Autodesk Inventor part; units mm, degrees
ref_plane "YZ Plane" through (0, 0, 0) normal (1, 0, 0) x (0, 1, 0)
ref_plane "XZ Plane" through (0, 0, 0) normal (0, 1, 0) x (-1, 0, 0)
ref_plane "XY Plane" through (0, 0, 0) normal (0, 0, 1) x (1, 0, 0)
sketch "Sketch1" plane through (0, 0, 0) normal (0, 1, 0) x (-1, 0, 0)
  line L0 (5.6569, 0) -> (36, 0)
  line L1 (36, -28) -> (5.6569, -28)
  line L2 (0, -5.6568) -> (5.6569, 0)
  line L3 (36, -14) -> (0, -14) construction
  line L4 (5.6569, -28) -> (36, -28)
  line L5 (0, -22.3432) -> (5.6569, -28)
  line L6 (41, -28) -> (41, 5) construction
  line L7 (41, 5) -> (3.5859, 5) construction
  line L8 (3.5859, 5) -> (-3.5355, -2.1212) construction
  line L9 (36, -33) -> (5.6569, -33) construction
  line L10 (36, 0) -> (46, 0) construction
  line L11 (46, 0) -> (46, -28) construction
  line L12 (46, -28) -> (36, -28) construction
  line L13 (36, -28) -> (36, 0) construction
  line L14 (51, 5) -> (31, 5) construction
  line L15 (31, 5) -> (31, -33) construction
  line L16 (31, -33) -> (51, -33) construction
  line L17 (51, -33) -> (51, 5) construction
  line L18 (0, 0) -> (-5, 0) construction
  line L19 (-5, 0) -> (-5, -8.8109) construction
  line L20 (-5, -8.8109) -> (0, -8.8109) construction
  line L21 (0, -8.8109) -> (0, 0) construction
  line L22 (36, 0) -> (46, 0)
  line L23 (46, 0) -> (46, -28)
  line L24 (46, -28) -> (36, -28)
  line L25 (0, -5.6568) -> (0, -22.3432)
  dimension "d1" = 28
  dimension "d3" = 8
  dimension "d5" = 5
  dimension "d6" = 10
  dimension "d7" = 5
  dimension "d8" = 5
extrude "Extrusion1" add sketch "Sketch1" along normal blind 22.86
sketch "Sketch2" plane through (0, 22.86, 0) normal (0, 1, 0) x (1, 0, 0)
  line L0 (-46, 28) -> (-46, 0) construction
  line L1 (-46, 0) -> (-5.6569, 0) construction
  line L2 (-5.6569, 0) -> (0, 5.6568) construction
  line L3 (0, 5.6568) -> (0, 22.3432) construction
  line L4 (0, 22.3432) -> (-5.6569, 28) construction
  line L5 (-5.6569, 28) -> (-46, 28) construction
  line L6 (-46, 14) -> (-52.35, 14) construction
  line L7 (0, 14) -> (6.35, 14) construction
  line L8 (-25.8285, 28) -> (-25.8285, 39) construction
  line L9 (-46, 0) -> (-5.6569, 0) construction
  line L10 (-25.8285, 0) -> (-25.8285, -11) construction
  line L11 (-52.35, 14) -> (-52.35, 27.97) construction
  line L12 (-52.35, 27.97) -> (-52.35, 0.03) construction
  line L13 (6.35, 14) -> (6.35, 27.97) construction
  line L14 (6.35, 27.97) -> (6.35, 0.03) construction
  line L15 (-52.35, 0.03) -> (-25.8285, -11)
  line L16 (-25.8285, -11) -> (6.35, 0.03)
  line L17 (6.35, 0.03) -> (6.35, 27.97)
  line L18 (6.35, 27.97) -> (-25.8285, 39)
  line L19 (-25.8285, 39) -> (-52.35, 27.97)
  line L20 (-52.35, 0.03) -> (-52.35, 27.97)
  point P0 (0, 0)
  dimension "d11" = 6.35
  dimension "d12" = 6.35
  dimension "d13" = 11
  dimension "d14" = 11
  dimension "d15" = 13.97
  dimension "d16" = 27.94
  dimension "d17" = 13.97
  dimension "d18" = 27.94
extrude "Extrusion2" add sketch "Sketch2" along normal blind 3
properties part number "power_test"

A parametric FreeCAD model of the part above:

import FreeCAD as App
import Part
import Sketcher

V = App.Vector
Q = App.Units.Quantity


def add_polygon(sketch, points):
    """Adds a closed chain of lines whose ends are joined by coincident constraints."""
    first, n = sketch.GeometryCount, len(points)
    for a, b in zip(points, points[1:] + points[:1]):
        sketch.addGeometry(Part.LineSegment(App.Vector(*a, 0), App.Vector(*b, 0)), False)
    for i in range(n):
        sketch.addConstraint(Sketcher.Constraint("Coincident", first + i, 2, first + (i + 1) % n, 1))

doc = App.newDocument("Part")
body = doc.addObject("PartDesign::Body", "Body")

sketch1 = body.newObject("Sketcher::SketchObject", "Sketch")
sketch1.AttachmentSupport = (doc.getObject("XZ_Plane"), [""])
sketch1.MapMode = "FlatFace"
add_polygon(sketch1, [(-46, 0), (-6, 0), (0, -6), (0, -22), (-6, -28), (-46, -28)])
sketch1.addConstraint([
    Sketcher.Constraint("Horizontal", 0),
    Sketcher.Constraint("Vertical", 2),
    Sketcher.Constraint("Horizontal", 4),
    Sketcher.Constraint("Vertical", 5),
    Sketcher.Constraint("PointOnObject", 0, 2, -1),
    Sketcher.Constraint("PointOnObject", 1, 2, -2),
    Sketcher.Constraint("Perpendicular", 1, 3),
    Sketcher.Constraint("Vertical", 0, 2, 3, 2),
    Sketcher.Constraint("Equal", 1, 3),
    Sketcher.Constraint("DistanceY", 5, 1, 5, 2, 28.0),
    Sketcher.Constraint("Distance", 1, 8.0),
    Sketcher.Constraint("DistanceX", 4, 2, -1, 1, 46.0),
])
pad1 = body.newObject("PartDesign::Pad", "Pad")
pad1.Profile = sketch1
pad1.Length = 22.86
pad1.Reversed = True

sketch2 = body.newObject("Sketcher::SketchObject", "Sketch001")
sketch2.AttachmentSupport = (doc.getObject("XZ_Plane"), [""])
sketch2.MapMode = "FlatFace"
sketch2.AttachmentOffset = App.Placement(V(0, 0, -22.86), App.Rotation())
add_polygon(sketch2, [(-52, -28), (-52, 0), (-26, 11), (6, 0), (6, -28), (-26, -39)])
sketch2.addConstraint([
    Sketcher.Constraint("Vertical", 0),
    Sketcher.Constraint("Vertical", 3),
    Sketcher.Constraint("Horizontal", 0, 2, 2, 2),
    Sketcher.Constraint("Horizontal", 3, 2, 5, 2),
    Sketcher.Constraint("Vertical", 1, 2, 4, 2),
    Sketcher.Constraint("Equal", 2, 4),
    Sketcher.Constraint("DistanceY", -1, 1, 1, 2, 11.0),
    Sketcher.Constraint("DistanceY", 0, 1, 0, 2, 27.94),
    Sketcher.Constraint("DistanceX", -1, 1, 2, 2, 6.35),
    Sketcher.Constraint("DistanceY", 4, 2, -1, 1, 39.0),
    Sketcher.Constraint("Angle", 2, Q("-18.9205 deg")),
    Sketcher.Constraint("DistanceX", 0, 2, 2, 2, 58.7),
])
pad2 = body.newObject("PartDesign::Pad", "Pad001")
pad2.Profile = sketch2
pad2.Length = 3
pad2.Reversed = True

doc.recompute()
